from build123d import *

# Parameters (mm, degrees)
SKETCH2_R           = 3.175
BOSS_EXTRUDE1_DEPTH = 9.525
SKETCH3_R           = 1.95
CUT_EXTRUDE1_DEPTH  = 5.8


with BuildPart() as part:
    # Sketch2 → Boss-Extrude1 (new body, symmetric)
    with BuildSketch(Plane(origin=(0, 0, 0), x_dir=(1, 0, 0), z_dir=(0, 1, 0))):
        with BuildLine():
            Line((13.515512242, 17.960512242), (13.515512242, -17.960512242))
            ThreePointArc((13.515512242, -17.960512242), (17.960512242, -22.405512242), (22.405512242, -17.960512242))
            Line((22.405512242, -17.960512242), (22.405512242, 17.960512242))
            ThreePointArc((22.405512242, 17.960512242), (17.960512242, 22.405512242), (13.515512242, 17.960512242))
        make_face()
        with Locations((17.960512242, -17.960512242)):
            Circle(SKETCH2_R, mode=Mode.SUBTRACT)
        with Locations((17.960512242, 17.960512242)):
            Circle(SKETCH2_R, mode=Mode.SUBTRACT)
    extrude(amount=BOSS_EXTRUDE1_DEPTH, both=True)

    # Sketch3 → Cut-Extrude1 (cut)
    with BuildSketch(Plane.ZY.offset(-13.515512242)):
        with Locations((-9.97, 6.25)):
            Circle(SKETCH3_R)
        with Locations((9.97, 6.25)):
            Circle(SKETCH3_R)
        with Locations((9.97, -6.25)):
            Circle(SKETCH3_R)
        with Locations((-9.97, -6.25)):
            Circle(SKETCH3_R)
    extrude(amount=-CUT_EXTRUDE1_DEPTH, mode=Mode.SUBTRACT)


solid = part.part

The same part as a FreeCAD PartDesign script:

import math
import FreeCAD as App
import Part
import Sketcher

V = App.Vector
Q = App.Units.Quantity

doc = App.newDocument("Part")
body = doc.addObject("PartDesign::Body", "Body")

# Sketch on XZ plane
sketch1 = body.newObject("Sketcher::SketchObject", "Sketch")
sketch1.AttachmentSupport = (doc.getObject("XZ_Plane"), [""])
sketch1.MapMode = "FlatFace"
sketch1.addGeometry(Part.LineSegment(V(13.5, -18, 0), V(13.5, 18, 0)), False)
sketch1.addGeometry(Part.ArcOfCircle(Part.Circle(V(18, 18, 0), V(0, 0, 1), 4.4), math.radians(0), math.radians(180)), False)
sketch1.addGeometry(Part.LineSegment(V(22.4, 18, 0), V(22.4, -18, 0)), False)
sketch1.addGeometry(Part.ArcOfCircle(Part.Circle(V(18, -18, 0), V(0, 0, 1), 4.4), math.radians(180), math.radians(360)), False)
sketch1.addGeometry(Part.Circle(V(18, 18, 0), V(0, 0, 1), 3.2), False)
sketch1.addGeometry(Part.Circle(V(18, -18, 0), V(0, 0, 1), 3.2), False)
sketch1.addConstraint(Sketcher.Constraint("Tangent", 0, 2, 1, 2))
sketch1.addConstraint(Sketcher.Constraint("Tangent", 1, 1, 2, 1))
sketch1.addConstraint(Sketcher.Constraint("Tangent", 2, 2, 3, 2))
sketch1.addConstraint(Sketcher.Constraint("Tangent", 3, 1, 0, 1))
sketch1.addConstraint(Sketcher.Constraint("Vertical", 0))
sketch1.addConstraint(Sketcher.Constraint("Vertical", 2))
sketch1.addConstraint(Sketcher.Constraint("Coincident", 4, 3, 1, 3))
sketch1.addConstraint(Sketcher.Constraint("Coincident", 5, 3, 3, 3))
sketch1.addConstraint(Sketcher.Constraint("Equal", 4, 5))
sketch1.addConstraint(Sketcher.Constraint("Diameter", 4, Q("0.25 in")))
sketch1.addConstraint(Sketcher.Constraint("Radius", 1, Q("0.175 in")))
sketch1.addConstraint(Sketcher.Constraint("DistanceY", 0, 1, 0, 2, 35.921024))
sketch1.addConstraint(Sketcher.Constraint("DistanceX", -1, 1, 1, 3, 17.960512))
sketch1.addConstraint(Sketcher.Constraint("DistanceY", -1, 1, 1, 3, 17.960512))
pad1 = body.newObject("PartDesign::Pad", "Pad")
pad1.Profile = sketch1
pad1.Length = Q("0.75 in")
pad1.Midplane = True

# Sketch on YZ plane
sketch2 = body.newObject("Sketcher::SketchObject", "Sketch001")
sketch2.AttachmentSupport = (doc.getObject("YZ_Plane"), [""])
sketch2.MapMode = "FlatFace"
sketch2.AttachmentOffset = App.Placement(V(0, 0, 13.515512), App.Rotation())
sketch2.addGeometry(Part.Circle(V(6.2, -10, 0), V(0, 0, 1), 1.9), False)
sketch2.addGeometry(Part.Circle(V(6.2, 10, 0), V(0, 0, 1), 1.9), False)
sketch2.addGeometry(Part.Circle(V(-6.2, 10, 0), V(0, 0, 1), 1.9), False)
sketch2.addGeometry(Part.Circle(V(-6.2, -10, 0), V(0, 0, 1), 1.9), False)
sketch2.addConstraint(Sketcher.Constraint("Equal", 0, 1))
sketch2.addConstraint(Sketcher.Constraint("Equal", 1, 2))
sketch2.addConstraint(Sketcher.Constraint("Equal", 2, 3))
sketch2.addConstraint(Sketcher.Constraint("Symmetric", 0, 3, 2, 3, -1, 1))
sketch2.addConstraint(Sketcher.Constraint("Symmetric", 1, 3, 3, 3, -1, 1))
sketch2.addConstraint(Sketcher.Constraint("Symmetric", 1, 3, 2, 3, -2))
sketch2.addConstraint(Sketcher.Constraint("Diameter", 0, 3.9))
sketch2.addConstraint(Sketcher.Constraint("DistanceX", -1, 1, 0, 3, 6.25))
sketch2.addConstraint(Sketcher.Constraint("DistanceY", 0, 3, -1, 1, 9.97))
pocket1 = body.newObject("PartDesign::Pocket", "Pocket")
pocket1.Profile = sketch2
pocket1.Length = 5.8
pocket1.Reversed = True

doc.recompute()
